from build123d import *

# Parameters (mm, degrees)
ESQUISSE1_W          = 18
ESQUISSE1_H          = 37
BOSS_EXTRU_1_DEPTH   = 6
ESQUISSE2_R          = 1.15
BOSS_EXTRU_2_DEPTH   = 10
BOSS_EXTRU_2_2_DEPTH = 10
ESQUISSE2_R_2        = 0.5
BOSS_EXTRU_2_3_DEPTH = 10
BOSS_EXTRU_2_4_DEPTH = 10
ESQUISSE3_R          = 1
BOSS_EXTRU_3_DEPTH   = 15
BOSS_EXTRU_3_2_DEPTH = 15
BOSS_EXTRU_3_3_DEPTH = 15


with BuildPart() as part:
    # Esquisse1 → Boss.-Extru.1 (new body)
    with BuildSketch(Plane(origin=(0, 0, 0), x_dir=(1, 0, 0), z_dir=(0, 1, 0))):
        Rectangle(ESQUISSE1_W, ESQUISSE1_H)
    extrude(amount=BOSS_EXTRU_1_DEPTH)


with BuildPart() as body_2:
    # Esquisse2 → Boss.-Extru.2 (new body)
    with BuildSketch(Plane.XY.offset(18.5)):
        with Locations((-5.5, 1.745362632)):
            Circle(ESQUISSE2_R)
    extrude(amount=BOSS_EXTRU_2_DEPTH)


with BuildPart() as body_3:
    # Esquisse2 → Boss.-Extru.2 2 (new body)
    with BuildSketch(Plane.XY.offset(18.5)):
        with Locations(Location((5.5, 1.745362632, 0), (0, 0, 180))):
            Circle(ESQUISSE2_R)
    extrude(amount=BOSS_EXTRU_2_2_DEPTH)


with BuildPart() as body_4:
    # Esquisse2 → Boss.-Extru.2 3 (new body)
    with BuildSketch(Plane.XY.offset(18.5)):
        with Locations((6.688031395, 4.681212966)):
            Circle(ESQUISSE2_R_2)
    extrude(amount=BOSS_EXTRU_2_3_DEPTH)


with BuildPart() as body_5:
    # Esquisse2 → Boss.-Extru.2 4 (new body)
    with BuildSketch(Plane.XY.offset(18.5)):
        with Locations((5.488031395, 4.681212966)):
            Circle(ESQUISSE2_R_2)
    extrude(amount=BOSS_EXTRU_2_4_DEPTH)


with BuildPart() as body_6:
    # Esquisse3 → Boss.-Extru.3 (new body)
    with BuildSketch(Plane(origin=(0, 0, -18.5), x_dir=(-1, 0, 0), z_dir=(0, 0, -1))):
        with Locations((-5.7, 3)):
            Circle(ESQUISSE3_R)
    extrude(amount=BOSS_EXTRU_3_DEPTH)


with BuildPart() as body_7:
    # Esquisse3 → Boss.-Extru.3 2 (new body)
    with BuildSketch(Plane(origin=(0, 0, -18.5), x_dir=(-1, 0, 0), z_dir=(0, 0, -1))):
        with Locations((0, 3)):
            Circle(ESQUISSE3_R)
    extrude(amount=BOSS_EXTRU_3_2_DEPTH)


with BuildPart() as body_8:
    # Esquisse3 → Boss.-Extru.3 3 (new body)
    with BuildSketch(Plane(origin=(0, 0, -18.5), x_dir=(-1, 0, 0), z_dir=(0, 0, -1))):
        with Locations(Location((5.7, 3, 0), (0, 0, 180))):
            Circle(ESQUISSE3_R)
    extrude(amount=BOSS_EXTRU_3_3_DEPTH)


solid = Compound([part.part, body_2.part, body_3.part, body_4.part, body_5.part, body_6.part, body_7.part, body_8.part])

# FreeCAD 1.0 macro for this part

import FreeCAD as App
import Part
import Sketcher


def add_polygon(sketch, points):
    """Adds a closed chain of lines whose ends are joined by coincident constraints."""
    first, n = sketch.GeometryCount, len(points)
    for a, b in zip(points, points[1:] + points[:1]):
        sketch.addGeometry(Part.LineSegment(App.Vector(*a, 0), App.Vector(*b, 0)), False)
    for i in range(n):
        sketch.addConstraint(Sketcher.Constraint("Coincident", first + i, 2, first + (i + 1) % n, 1))

doc = App.newDocument("Part")
body = doc.addObject("PartDesign::Body", "Body")

sketch1 = body.newObject("Sketcher::SketchObject", "Sketch")
sketch1.AttachmentSupport = (doc.getObject("XZ_Plane"), [""])
sketch1.MapMode = "FlatFace"
add_polygon(sketch1, [(-9, -18), (-9, 18), (9, 18), (9, -18)])
sketch1.addConstraint([
    Sketcher.Constraint("Vertical", 0),
    Sketcher.Constraint("Horizontal", 1),
    Sketcher.Constraint("Vertical", 2),
    Sketcher.Constraint("Horizontal", 3),
    Sketcher.Constraint("Symmetric", 0, 2, 2, 2, -1, 1),
    Sketcher.Constraint("DistanceX", 1, 1, 1, 2, 18.0),
    Sketcher.Constraint("DistanceY", 0, 1, 0, 2, 37.0),
])
pad1 = body.newObject("PartDesign::Pad", "Pad")
pad1.Profile = sketch1
pad1.Length = 6
pad1.Reversed = True
body2 = doc.addObject("PartDesign::Body", "Body001")

sketch2 = body2.newObject("Sketcher::SketchObject", "Sketch001")
sketch2.AttachmentSupport = (doc.getObject("XY_Plane001"), [""])
sketch2.MapMode = "FlatFace"
sketch2.AttachmentOffset = App.Placement(App.Vector(0, 0, 18.5), App.Rotation())
sketch2.addGeometry(Part.Circle(App.Vector(-5.5, 1.7, 0), App.Vector(0, 0, 1), 1.1), False)
sketch2.addConstraint([
    Sketcher.Constraint("Diameter", 0, 2.3),
    Sketcher.Constraint("DistanceX", 0, 3, -1, 1, 5.5),
    Sketcher.Constraint("DistanceY", -1, 1, 0, 3, 1.745363),
])
pad2 = body2.newObject("PartDesign::Pad", "Pad001")
pad2.Profile = sketch2
pad2.Length = 10
body3 = doc.addObject("PartDesign::Body", "Body002")

sketch3 = body3.newObject("Sketcher::SketchObject", "Sketch002")
sketch3.AttachmentSupport = (doc.getObject("XY_Plane002"), [""])
sketch3.MapMode = "FlatFace"
sketch3.AttachmentOffset = App.Placement(App.Vector(0, 0, 18.5), App.Rotation())
sketch3.addGeometry(Part.Circle(App.Vector(5.5, 1.7, 0), App.Vector(0, 0, 1), 1.1), False)
sketch3.addConstraint([
    Sketcher.Constraint("Diameter", 0, 2.3),
    Sketcher.Constraint("DistanceX", -1, 1, 0, 3, 5.5),
    Sketcher.Constraint("DistanceY", -1, 1, 0, 3, 1.745363),
])
pad3 = body3.newObject("PartDesign::Pad", "Pad002")
pad3.Profile = sketch3
pad3.Length = 10
body4 = doc.addObject("PartDesign::Body", "Body003")

sketch4 = body4.newObject("Sketcher::SketchObject", "Sketch003")
sketch4.AttachmentSupport = (doc.getObject("XY_Plane003"), [""])
sketch4.MapMode = "FlatFace"
sketch4.AttachmentOffset = App.Placement(App.Vector(0, 0, 18.5), App.Rotation())
sketch4.addGeometry(Part.Circle(App.Vector(6.7, 4.7, 0), App.Vector(0, 0, 1), 0.5), False)
sketch4.addConstraint([
    Sketcher.Constraint("Diameter", 0, 1.0),
    Sketcher.Constraint("DistanceX", -1, 1, 0, 3, 6.688031),
    Sketcher.Constraint("DistanceY", -1, 1, 0, 3, 4.681213),
])
pad4 = body4.newObject("PartDesign::Pad", "Pad003")
pad4.Profile = sketch4
pad4.Length = 10
body5 = doc.addObject("PartDesign::Body", "Body004")

sketch5 = body5.newObject("Sketcher::SketchObject", "Sketch004")
sketch5.AttachmentSupport = (doc.getObject("XY_Plane004"), [""])
sketch5.MapMode = "FlatFace"
sketch5.AttachmentOffset = App.Placement(App.Vector(0, 0, 18.5), App.Rotation())
sketch5.addGeometry(Part.Circle(App.Vector(5.5, 4.7, 0), App.Vector(0, 0, 1), 0.5), False)
sketch5.addConstraint([
    Sketcher.Constraint("Diameter", 0, 1.0),
    Sketcher.Constraint("DistanceX", -1, 1, 0, 3, 5.488031),
    Sketcher.Constraint("DistanceY", -1, 1, 0, 3, 4.681213),
])
pad5 = body5.newObject("PartDesign::Pad", "Pad004")
pad5.Profile = sketch5
pad5.Length = 10
body6 = doc.addObject("PartDesign::Body", "Body005")

sketch6 = body6.newObject("Sketcher::SketchObject", "Sketch005")
sketch6.AttachmentSupport = (doc.getObject("XY_Plane005"), [""])
sketch6.MapMode = "FlatFace"
sketch6.AttachmentOffset = App.Placement(App.Vector(0, 0, -18.5), App.Rotation())
sketch6.addGeometry(Part.Circle(App.Vector(5.7, 3, 0), App.Vector(0, 0, 1), 1), False)
sketch6.addConstraint([
    Sketcher.Constraint("Diameter", 0, 2.0),
    Sketcher.Constraint("DistanceY", -1, 1, 0, 3, 3.0),
    Sketcher.Constraint("DistanceX", -1, 1, 0, 3, 5.7),
])
pad6 = body6.newObject("PartDesign::Pad", "Pad005")
pad6.Profile = sketch6
pad6.Length = 15
pad6.Reversed = True
body7 = doc.addObject("PartDesign::Body", "Body006")

sketch7 = body7.newObject("Sketcher::SketchObject", "Sketch006")
sketch7.AttachmentSupport = (doc.getObject("XY_Plane006"), [""])
sketch7.MapMode = "FlatFace"
sketch7.AttachmentOffset = App.Placement(App.Vector(0, 0, -18.5), App.Rotation())
sketch7.addGeometry(Part.Circle(App.Vector(0, 3, 0), App.Vector(0, 0, 1), 1), False)
sketch7.addConstraint([
    Sketcher.Constraint("PointOnObject", 0, 3, -2),
    Sketcher.Constraint("Diameter", 0, 2.0),
    Sketcher.Constraint("DistanceY", -1, 1, 0, 3, 3.0),
])
pad7 = body7.newObject("PartDesign::Pad", "Pad006")
pad7.Profile = sketch7
pad7.Length = 15
pad7.Reversed = True
body8 = doc.addObject("PartDesign::Body", "Body007")

sketch8 = body8.newObject("Sketcher::SketchObject", "Sketch007")
sketch8.AttachmentSupport = (doc.getObject("XY_Plane007"), [""])
sketch8.MapMode = "FlatFace"
sketch8.AttachmentOffset = App.Placement(App.Vector(0, 0, -18.5), App.Rotation())
sketch8.addGeometry(Part.Circle(App.Vector(-5.7, 3, 0), App.Vector(0, 0, 1), 1), False)
sketch8.addConstraint([
    Sketcher.Constraint("Diameter", 0, 2.0),
    Sketcher.Constraint("DistanceY", -1, 1, 0, 3, 3.0),
    Sketcher.Constraint("DistanceX", 0, 3, -1, 1, 5.7),
])
pad8 = body8.newObject("PartDesign::Pad", "Pad007")
pad8.Profile = sketch8
pad8.Length = 15
pad8.Reversed = True

doc.recompute()
